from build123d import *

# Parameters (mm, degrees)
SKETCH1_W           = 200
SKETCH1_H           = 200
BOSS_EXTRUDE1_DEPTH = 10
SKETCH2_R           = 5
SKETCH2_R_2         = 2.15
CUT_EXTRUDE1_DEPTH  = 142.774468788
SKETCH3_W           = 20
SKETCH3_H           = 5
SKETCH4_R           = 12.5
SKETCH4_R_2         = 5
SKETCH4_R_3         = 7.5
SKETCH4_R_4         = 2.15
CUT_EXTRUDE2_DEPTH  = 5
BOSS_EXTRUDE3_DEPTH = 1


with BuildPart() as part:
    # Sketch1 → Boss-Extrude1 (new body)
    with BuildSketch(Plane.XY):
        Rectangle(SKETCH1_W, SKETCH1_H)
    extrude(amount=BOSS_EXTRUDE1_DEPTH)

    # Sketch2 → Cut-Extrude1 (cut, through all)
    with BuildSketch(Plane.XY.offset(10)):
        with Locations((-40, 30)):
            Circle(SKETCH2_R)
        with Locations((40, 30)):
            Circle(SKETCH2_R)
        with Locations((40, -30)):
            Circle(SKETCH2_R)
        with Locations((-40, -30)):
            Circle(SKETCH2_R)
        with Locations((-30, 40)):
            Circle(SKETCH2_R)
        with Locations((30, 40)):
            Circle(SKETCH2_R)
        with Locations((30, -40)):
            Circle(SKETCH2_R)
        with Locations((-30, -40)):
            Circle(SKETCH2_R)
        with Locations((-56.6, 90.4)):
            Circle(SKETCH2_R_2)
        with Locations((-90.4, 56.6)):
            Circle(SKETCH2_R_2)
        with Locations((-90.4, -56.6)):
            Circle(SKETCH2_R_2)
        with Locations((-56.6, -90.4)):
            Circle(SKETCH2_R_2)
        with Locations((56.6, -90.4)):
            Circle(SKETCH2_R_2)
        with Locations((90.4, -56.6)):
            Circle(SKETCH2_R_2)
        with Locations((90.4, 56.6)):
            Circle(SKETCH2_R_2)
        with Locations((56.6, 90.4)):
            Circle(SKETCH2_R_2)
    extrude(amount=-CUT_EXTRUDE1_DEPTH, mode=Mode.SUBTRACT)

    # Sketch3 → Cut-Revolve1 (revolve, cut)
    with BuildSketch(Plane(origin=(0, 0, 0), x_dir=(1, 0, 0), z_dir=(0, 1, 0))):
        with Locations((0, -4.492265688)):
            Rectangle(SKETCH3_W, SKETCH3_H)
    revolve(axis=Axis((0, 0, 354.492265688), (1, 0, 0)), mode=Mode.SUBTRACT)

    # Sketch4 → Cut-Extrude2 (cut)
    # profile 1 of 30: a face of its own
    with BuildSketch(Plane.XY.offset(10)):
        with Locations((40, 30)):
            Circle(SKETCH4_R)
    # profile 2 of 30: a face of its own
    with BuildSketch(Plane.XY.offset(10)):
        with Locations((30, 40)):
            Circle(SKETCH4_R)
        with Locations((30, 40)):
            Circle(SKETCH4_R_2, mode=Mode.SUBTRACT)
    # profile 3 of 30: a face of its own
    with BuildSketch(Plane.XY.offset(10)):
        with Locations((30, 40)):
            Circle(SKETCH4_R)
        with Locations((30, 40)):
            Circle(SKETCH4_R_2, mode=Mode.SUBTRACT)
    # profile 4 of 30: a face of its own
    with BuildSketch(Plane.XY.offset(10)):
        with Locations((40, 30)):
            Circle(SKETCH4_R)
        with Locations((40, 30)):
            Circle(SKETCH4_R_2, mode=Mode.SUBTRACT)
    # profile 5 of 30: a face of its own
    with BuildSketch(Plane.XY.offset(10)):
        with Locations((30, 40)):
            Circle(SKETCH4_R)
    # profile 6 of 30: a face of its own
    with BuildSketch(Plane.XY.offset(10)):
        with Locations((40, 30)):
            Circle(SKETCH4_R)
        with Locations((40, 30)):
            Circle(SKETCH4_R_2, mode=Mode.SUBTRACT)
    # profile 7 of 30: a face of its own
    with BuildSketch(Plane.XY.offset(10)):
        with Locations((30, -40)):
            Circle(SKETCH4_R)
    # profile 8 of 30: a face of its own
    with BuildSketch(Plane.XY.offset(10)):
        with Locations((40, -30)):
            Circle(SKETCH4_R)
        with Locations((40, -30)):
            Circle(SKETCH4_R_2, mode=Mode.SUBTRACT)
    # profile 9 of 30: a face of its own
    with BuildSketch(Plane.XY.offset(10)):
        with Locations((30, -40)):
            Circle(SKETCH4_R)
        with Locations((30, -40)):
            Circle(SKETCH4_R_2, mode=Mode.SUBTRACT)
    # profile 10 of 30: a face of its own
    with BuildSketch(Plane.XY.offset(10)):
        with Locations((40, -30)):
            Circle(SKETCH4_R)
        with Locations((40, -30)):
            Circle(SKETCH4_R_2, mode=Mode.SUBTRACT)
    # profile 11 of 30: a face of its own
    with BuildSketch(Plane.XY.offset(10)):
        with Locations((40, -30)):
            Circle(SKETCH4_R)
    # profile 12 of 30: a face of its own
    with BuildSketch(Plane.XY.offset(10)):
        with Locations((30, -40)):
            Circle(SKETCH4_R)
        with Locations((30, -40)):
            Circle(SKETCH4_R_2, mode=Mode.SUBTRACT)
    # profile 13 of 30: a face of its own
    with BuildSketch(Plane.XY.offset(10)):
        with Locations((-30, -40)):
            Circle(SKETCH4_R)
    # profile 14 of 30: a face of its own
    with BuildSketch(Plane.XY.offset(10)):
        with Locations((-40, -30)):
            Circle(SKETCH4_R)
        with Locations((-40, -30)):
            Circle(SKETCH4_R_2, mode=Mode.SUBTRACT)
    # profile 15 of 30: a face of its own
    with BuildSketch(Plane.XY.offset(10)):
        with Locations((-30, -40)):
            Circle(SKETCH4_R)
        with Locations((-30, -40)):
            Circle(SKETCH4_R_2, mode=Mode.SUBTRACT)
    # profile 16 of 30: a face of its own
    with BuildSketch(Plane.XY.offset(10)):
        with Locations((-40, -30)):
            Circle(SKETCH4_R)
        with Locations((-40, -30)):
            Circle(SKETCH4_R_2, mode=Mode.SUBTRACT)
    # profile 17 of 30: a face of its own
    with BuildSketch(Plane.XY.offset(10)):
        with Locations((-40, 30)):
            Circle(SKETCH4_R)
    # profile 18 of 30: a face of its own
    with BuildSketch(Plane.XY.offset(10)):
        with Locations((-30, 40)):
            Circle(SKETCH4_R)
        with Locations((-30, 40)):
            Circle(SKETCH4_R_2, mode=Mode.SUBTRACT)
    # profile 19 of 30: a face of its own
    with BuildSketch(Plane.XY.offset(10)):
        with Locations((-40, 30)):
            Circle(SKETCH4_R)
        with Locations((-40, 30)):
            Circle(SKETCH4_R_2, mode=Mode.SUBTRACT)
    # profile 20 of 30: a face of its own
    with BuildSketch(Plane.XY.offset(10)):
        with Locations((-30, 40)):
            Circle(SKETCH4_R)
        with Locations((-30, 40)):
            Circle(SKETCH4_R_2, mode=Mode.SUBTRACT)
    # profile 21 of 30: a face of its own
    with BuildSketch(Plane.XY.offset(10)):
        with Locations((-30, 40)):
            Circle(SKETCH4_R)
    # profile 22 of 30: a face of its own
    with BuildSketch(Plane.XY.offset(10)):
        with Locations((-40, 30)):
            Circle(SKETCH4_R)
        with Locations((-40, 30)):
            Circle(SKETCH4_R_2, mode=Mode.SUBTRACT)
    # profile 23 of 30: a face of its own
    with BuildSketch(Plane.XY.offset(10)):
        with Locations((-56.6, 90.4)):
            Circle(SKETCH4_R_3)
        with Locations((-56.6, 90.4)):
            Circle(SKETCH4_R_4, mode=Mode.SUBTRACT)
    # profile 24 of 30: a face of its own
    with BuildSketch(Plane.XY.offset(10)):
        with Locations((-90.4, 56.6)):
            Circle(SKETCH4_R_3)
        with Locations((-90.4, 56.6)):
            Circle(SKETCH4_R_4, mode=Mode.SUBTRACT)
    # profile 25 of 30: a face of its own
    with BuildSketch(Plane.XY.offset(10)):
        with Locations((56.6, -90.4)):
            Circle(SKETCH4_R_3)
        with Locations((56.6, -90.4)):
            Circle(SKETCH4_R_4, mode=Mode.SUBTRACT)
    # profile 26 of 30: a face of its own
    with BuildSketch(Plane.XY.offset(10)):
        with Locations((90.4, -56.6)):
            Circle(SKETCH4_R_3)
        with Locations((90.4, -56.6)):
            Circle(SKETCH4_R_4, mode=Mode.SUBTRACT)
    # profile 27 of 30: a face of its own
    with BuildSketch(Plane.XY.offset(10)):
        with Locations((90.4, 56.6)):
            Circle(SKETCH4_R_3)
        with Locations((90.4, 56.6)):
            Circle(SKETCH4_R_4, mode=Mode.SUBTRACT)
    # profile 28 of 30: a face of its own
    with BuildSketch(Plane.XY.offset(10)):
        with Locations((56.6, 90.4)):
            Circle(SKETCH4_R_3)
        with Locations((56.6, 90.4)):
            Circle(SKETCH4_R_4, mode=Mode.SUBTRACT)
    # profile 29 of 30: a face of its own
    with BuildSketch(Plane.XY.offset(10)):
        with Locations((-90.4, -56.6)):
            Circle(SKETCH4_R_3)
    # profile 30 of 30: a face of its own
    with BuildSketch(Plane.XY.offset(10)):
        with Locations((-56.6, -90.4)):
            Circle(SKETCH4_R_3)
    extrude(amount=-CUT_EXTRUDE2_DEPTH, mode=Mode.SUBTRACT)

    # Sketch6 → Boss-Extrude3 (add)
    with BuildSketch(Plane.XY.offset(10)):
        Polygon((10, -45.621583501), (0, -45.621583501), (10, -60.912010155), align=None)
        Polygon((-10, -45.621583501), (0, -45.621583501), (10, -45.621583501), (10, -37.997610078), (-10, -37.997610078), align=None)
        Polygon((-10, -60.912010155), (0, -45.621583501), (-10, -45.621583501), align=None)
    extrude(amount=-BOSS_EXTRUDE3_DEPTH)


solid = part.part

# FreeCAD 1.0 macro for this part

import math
import FreeCAD as App
import Part
import Sketcher

V = App.Vector

doc = App.newDocument("Part")
params = doc.addObject("Spreadsheet::Sheet", "Params")
for row, (alias, value) in enumerate([
    ("sketch1_width", "200 mm"),
    ("pad1_length", "10 mm"),
    ("sketch2_diameter", "10 mm"),
    ("sketch2_diameter2", "4.3 mm"),
    ("sketch3_width", "20 mm"),
    ("sketch3_height", "5 mm"),
    ("groove_angle", "360 deg"),
    ("sketch4_diameter", "15 mm"),
    ("sketch4_radius", "5 mm"),
    ("sketch4_diameter2", "4.3 mm"),
    ("sketch4_radius2", "12.5 mm"),
    ("pocket2_length", "5 mm"),
    ("sketch5_width", "20 mm"),
    ("pad2_length", "1 mm"),
], start=1):
    params.set(f"A{row}", alias)
    params.set(f"B{row}", "=" + value)
    params.setAlias(f"B{row}", alias)

body = doc.addObject("PartDesign::Body", "Body")

sketch1 = doc.addObject("Sketcher::SketchObject", "Sketch")
body.addObject(sketch1)
sketch1.AttachmentSupport = (doc.XY_Plane, [""])
sketch1.MapMode = "FlatFace"
sketch1.addGeometry([
    Part.LineSegment(V(-100, 100, 0), V(-100, -100, 0)),
    Part.LineSegment(V(-100, -100, 0), V(100, -100, 0)),
    Part.LineSegment(V(100, -100, 0), V(100, 100, 0)),
    Part.LineSegment(V(100, 100, 0), V(-100, 100, 0)),
], False)
sketch1.addConstraint([
    Sketcher.Constraint("Coincident", 0, 2, 1, 1),
    Sketcher.Constraint("Coincident", 1, 2, 2, 1),
    Sketcher.Constraint("Coincident", 2, 2, 3, 1),
    Sketcher.Constraint("Coincident", 3, 2, 0, 1),
    Sketcher.Constraint("Vertical", 0),
    Sketcher.Constraint("Horizontal", 1),
    Sketcher.Constraint("Vertical", 2),
    Sketcher.Constraint("Horizontal", 3),
    Sketcher.Constraint("Symmetric", 0, 2, 2, 2, -1, 1),
    Sketcher.Constraint("Equal", 3, 0),
    Sketcher.Constraint("DistanceX", 1, 1, 1, 2, 200.0),
])
sketch1.setExpression("Constraints[10]", "Params.sketch1_width")
pad1 = doc.addObject("PartDesign::Pad", "Pad")
body.addObject(pad1)
pad1.Profile = sketch1
pad1.setExpression("Length", "Params.pad1_length")

sketch2 = doc.addObject("Sketcher::SketchObject", "Sketch001")
body.addObject(sketch2)
sketch2.AttachmentSupport = (doc.XY_Plane, [""])
sketch2.MapMode = "FlatFace"
sketch2.AttachmentOffset = App.Placement(V(0, 0, 10), App.Rotation())
sketch2.addGeometry([
    Part.Circle(V(-40, 30, 0), V(0, 0, 1), 5),
    Part.Circle(V(40, 30, 0), V(0, 0, 1), 5),
    Part.Circle(V(40, -30, 0), V(0, 0, 1), 5),
    Part.Circle(V(-40, -30, 0), V(0, 0, 1), 5),
    Part.Circle(V(-30, 40, 0), V(0, 0, 1), 5),
    Part.Circle(V(30, 40, 0), V(0, 0, 1), 5),
    Part.Circle(V(30, -40, 0), V(0, 0, 1), 5),
    Part.Circle(V(-30, -40, 0), V(0, 0, 1), 5),
    Part.Circle(V(-56.6, 90.4, 0), V(0, 0, 1), 2.1),
    Part.Circle(V(-90.4, 56.6, 0), V(0, 0, 1), 2.1),
    Part.Circle(V(-90.4, -56.6, 0), V(0, 0, 1), 2.1),
    Part.Circle(V(-56.6, -90.4, 0), V(0, 0, 1), 2.1),
    Part.Circle(V(56.6, -90.4, 0), V(0, 0, 1), 2.1),
    Part.Circle(V(90.4, -56.6, 0), V(0, 0, 1), 2.1),
    Part.Circle(V(90.4, 56.6, 0), V(0, 0, 1), 2.1),
    Part.Circle(V(56.6, 90.4, 0), V(0, 0, 1), 2.1),
], False)
sketch2.addConstraint([
    Sketcher.Constraint("Equal", 0, 1),
    Sketcher.Constraint("Equal", 1, 2),
    Sketcher.Constraint("Equal", 2, 3),
    Sketcher.Constraint("Equal", 3, 4),
    Sketcher.Constraint("Equal", 4, 5),
    Sketcher.Constraint("Equal", 5, 6),
    Sketcher.Constraint("Equal", 6, 7),
    Sketcher.Constraint("Equal", 8, 9),
    Sketcher.Constraint("Equal", 9, 10),
    Sketcher.Constraint("Equal", 10, 11),
    Sketcher.Constraint("Equal", 11, 12),
    Sketcher.Constraint("Equal", 12, 13),
    Sketcher.Constraint("Equal", 13, 14),
    Sketcher.Constraint("Equal", 14, 15),
    Sketcher.Constraint("Symmetric", 0, 3, 2, 3, -1, 1),
    Sketcher.Constraint("Symmetric", 1, 3, 3, 3, -1, 1),
    Sketcher.Constraint("Symmetric", 4, 3, 6, 3, -1, 1),
    Sketcher.Constraint("Symmetric", 5, 3, 7, 3, -1, 1),
    Sketcher.Constraint("Symmetric", 8, 3, 12, 3, -1, 1),
    Sketcher.Constraint("Symmetric", 9, 3, 13, 3, -1, 1),
    Sketcher.Constraint("Symmetric", 10, 3, 14, 3, -1, 1),
    Sketcher.Constraint("Symmetric", 11, 3, 15, 3, -1, 1),
    Sketcher.Constraint("Symmetric", 0, 3, 1, 3, -2),
    Sketcher.Constraint("Symmetric", 4, 3, 5, 3, -2),
    Sketcher.Constraint("Symmetric", 11, 3, 12, 3, -2),
    Sketcher.Constraint("Symmetric", 10, 3, 13, 3, -2),
    Sketcher.Constraint("Diameter", 0, 10.0),
    Sketcher.Constraint("Diameter", 8, 4.3),
    Sketcher.Constraint("DistanceX", 0, 3, -1, 1, 40.0),
    Sketcher.Constraint("DistanceY", -1, 1, 0, 3, 30.0),
    Sketcher.Constraint("DistanceX", 4, 3, -1, 1, 30.0),
    Sketcher.Constraint("DistanceY", -1, 1, 4, 3, 40.0),
    Sketcher.Constraint("DistanceX", 8, 3, -1, 1, 56.6),
    Sketcher.Constraint("DistanceY", -1, 1, 8, 3, 90.4),
    Sketcher.Constraint("DistanceX", 9, 3, -1, 1, 90.4),
    Sketcher.Constraint("DistanceY", -1, 1, 9, 3, 56.6),
])
sketch2.setExpression("Constraints[26]", "Params.sketch2_diameter")
sketch2.setExpression("Constraints[27]", "Params.sketch2_diameter2")
pocket1 = doc.addObject("PartDesign::Pocket", "Pocket")
body.addObject(pocket1)
pocket1.Profile = sketch2
pocket1.Type = "ThroughAll"

sketch3 = doc.addObject("Sketcher::SketchObject", "Sketch002")
body.addObject(sketch3)
sketch3.AttachmentSupport = (doc.XZ_Plane, [""])
sketch3.MapMode = "FlatFace"
sketch3.addGeometry([
    Part.LineSegment(V(-10, 2, 0), V(-10, 7, 0)),
    Part.LineSegment(V(-10, 7, 0), V(10, 7, 0)),
    Part.LineSegment(V(10, 7, 0), V(10, 2, 0)),
    Part.LineSegment(V(10, 2, 0), V(-10, 2, 0)),
], False)
sketch3.addGeometry(Part.LineSegment(V(-10, 354, 0), V(10, 354, 0)), True)
sketch3.addConstraint([
    Sketcher.Constraint("Coincident", 0, 2, 1, 1),
    Sketcher.Constraint("Coincident", 1, 2, 2, 1),
    Sketcher.Constraint("Coincident", 2, 2, 3, 1),
    Sketcher.Constraint("Coincident", 3, 2, 0, 1),
    Sketcher.Constraint("Vertical", 0),
    Sketcher.Constraint("Horizontal", 1),
    Sketcher.Constraint("Vertical", 2),
    Sketcher.Constraint("Horizontal", 3),
    Sketcher.Constraint("Horizontal", 4),
    Sketcher.Constraint("Vertical", 3, 2, 4, 1),
    Sketcher.Constraint("Vertical", 2, 2, 4, 2),
    Sketcher.Constraint("DistanceX", 1, 1, 1, 2, 20.0),
    Sketcher.Constraint("DistanceY", 0, 1, 0, 2, 5.0),
    Sketcher.Constraint("DistanceX", 0, 2, -1, 1, 10.0),
    Sketcher.Constraint("DistanceY", 0, 2, 4, 1, 347.5),
    Sketcher.Constraint("DistanceY", -1, 1, 0, 2, 6.992266),
])
sketch3.setExpression("Constraints[11]", "Params.sketch3_width")
sketch3.setExpression("Constraints[12]", "Params.sketch3_height")
groove = doc.addObject("PartDesign::Groove", "Groove")
body.addObject(groove)
groove.Profile = sketch3
groove.ReferenceAxis = (sketch3, ["Axis0"])
groove.setExpression("Angle", "Params.groove_angle")

sketch4 = doc.addObject("Sketcher::SketchObject", "Sketch003")
body.addObject(sketch4)
sketch4.AttachmentSupport = (doc.XY_Plane, [""])
sketch4.MapMode = "FlatFace"
sketch4.AttachmentOffset = App.Placement(V(0, 0, 10), App.Rotation())
sketch4.addGeometry([
    Part.ArcOfCircle(Part.Circle(V(40, 30, 0), V(0, 0, 1), 12.5), math.radians(-169), math.radians(79)),
    Part.ArcOfCircle(Part.Circle(V(30, 40, 0), V(0, 0, 1), 12.5), math.radians(11), math.radians(259)),
    Part.ArcOfCircle(Part.Circle(V(40, -30, 0), V(0, 0, 1), 12.5), math.radians(-79), math.radians(169)),
    Part.ArcOfCircle(Part.Circle(V(30, -40, 0), V(0, 0, 1), 12.5), math.radians(101), math.radians(349)),
    Part.ArcOfCircle(Part.Circle(V(-30, -40, 0), V(0, 0, 1), 12.5), math.radians(-169), math.radians(79)),
    Part.ArcOfCircle(Part.Circle(V(-40, -30, 0), V(0, 0, 1), 12.5), math.radians(11), math.radians(259)),
    Part.ArcOfCircle(Part.Circle(V(-30, -40, 0), V(0, 0, 1), 12.5), math.radians(115), math.radians(155)),
    Part.ArcOfCircle(Part.Circle(V(-40, -30, 0), V(0, 0, 1), 5), math.radians(16), math.radians(254)),
    Part.ArcOfCircle(Part.Circle(V(-30, 40, 0), V(0, 0, 1), 12.5), math.radians(-79), math.radians(169)),
    Part.ArcOfCircle(Part.Circle(V(-40, 30, 0), V(0, 0, 1), 12.5), math.radians(101), math.radians(349)),
    Part.Circle(V(-56.6, 90.4, 0), V(0, 0, 1), 7.5),
    Part.Circle(V(-56.6, 90.4, 0), V(0, 0, 1), 2.1),
    Part.Circle(V(-90.4, 56.6, 0), V(0, 0, 1), 7.5),
    Part.Circle(V(-90.4, 56.6, 0), V(0, 0, 1), 2.1),
    Part.Circle(V(56.6, -90.4, 0), V(0, 0, 1), 7.5),
    Part.Circle(V(56.6, -90.4, 0), V(0, 0, 1), 2.1),
    Part.Circle(V(90.4, -56.6, 0), V(0, 0, 1), 7.5),
    Part.Circle(V(90.4, -56.6, 0), V(0, 0, 1), 2.1),
    Part.Circle(V(90.4, 56.6, 0), V(0, 0, 1), 7.5),
    Part.Circle(V(90.4, 56.6, 0), V(0, 0, 1), 2.1),
    Part.Circle(V(56.6, 90.4, 0), V(0, 0, 1), 7.5),
    Part.Circle(V(56.6, 90.4, 0), V(0, 0, 1), 2.1),
    Part.Circle(V(-90.4, -56.6, 0), V(0, 0, 1), 7.5),
    Part.Circle(V(-56.6, -90.4, 0), V(0, 0, 1), 7.5),
], False)
sketch4.addConstraint([
    Sketcher.Constraint("Coincident", 0, 1, 1, 2),
    Sketcher.Constraint("Coincident", 1, 1, 0, 2),
    Sketcher.Constraint("Coincident", 2, 1, 3, 2),
    Sketcher.Constraint("Coincident", 3, 1, 2, 2),
    Sketcher.Constraint("Coincident", 4, 1, 5, 2),
    Sketcher.Constraint("Coincident", 5, 1, 4, 2),
    Sketcher.Constraint("Coincident", 6, 1, 7, 1),
    Sketcher.Constraint("Coincident", 7, 2, 6, 2),
    Sketcher.Constraint("Coincident", 8, 1, 9, 2),
    Sketcher.Constraint("Coincident", 9, 1, 8, 2),
    Sketcher.Constraint("Coincident", 6, 3, 4, 3),
    Sketcher.Constraint("Coincident", 7, 3, 5, 3),
    Sketcher.Constraint("Coincident", 11, 3, 10, 3),
    Sketcher.Constraint("Coincident", 13, 3, 12, 3),
    Sketcher.Constraint("Coincident", 15, 3, 14, 3),
    Sketcher.Constraint("Coincident", 17, 3, 16, 3),
    Sketcher.Constraint("Coincident", 19, 3, 18, 3),
    Sketcher.Constraint("Coincident", 21, 3, 20, 3),
    Sketcher.Constraint("Equal", 0, 1),
    Sketcher.Constraint("Equal", 1, 2),
    Sketcher.Constraint("Equal", 2, 3),
    Sketcher.Constraint("Equal", 3, 4),
    Sketcher.Constraint("Equal", 4, 5),
    Sketcher.Constraint("Equal", 5, 6),
    Sketcher.Constraint("Equal", 6, 8),
    Sketcher.Constraint("Equal", 8, 9),
    Sketcher.Constraint("Equal", 10, 12),
    Sketcher.Constraint("Equal", 11, 13),
    Sketcher.Constraint("Equal", 12, 14),
    Sketcher.Constraint("Equal", 13, 15),
    Sketcher.Constraint("Equal", 14, 16),
    Sketcher.Constraint("Equal", 15, 17),
    Sketcher.Constraint("Equal", 16, 18),
    Sketcher.Constraint("Equal", 17, 19),
    Sketcher.Constraint("Equal", 18, 20),
    Sketcher.Constraint("Equal", 19, 21),
    Sketcher.Constraint("Equal", 20, 22),
    Sketcher.Constraint("Equal", 22, 23),
    Sketcher.Constraint("Symmetric", 1, 3, 4, 3, -1, 1),
    Sketcher.Constraint("Symmetric", 0, 3, 5, 3, -1, 1),
    Sketcher.Constraint("Symmetric", 3, 3, 8, 3, -1, 1),
    Sketcher.Constraint("Symmetric", 2, 3, 9, 3, -1, 1),
    Sketcher.Constraint("Symmetric", 10, 3, 14, 3, -1, 1),
    Sketcher.Constraint("Symmetric", 12, 3, 16, 3, -1, 1),
    Sketcher.Constraint("Symmetric", 18, 3, 22, 3, -1, 1),
    Sketcher.Constraint("Symmetric", 20, 3, 23, 3, -1, 1),
    Sketcher.Constraint("Symmetric", 3, 3, 4, 3, -2),
    Sketcher.Constraint("Symmetric", 2, 3, 5, 3, -2),
    Sketcher.Constraint("Symmetric", 12, 3, 18, 3, -2),
    Sketcher.Constraint("Symmetric", 10, 3, 20, 3, -2),
    Sketcher.Constraint("Diameter", 10, 15.0),
    Sketcher.Constraint("Radius", 7, 5.0),
    Sketcher.Constraint("Diameter", 11, 4.3),
    Sketcher.Constraint("Radius", 0, 12.5),
    Sketcher.Constraint("DistanceX", -1, 1, 0, 3, 40.0),
    Sketcher.Constraint("DistanceY", -1, 1, 0, 3, 30.0),
    Sketcher.Constraint("DistanceX", -1, 1, 1, 3, 30.0),
    Sketcher.Constraint("DistanceY", -1, 1, 1, 3, 40.0),
    Sketcher.Constraint("DistanceX", 10, 3, -1, 1, 56.6),
    Sketcher.Constraint("DistanceY", -1, 1, 10, 3, 90.4),
    Sketcher.Constraint("DistanceX", 12, 3, -1, 1, 90.4),
    Sketcher.Constraint("DistanceY", -1, 1, 12, 3, 56.6),
])
sketch4.setExpression("Constraints[50]", "Params.sketch4_diameter")
sketch4.setExpression("Constraints[51]", "Params.sketch4_radius")
sketch4.setExpression("Constraints[52]", "Params.sketch4_diameter2")
sketch4.setExpression("Constraints[53]", "Params.sketch4_radius2")
pocket2 = doc.addObject("PartDesign::Pocket", "Pocket001")
body.addObject(pocket2)
pocket2.Profile = sketch4
pocket2.setExpression("Length", "Params.pocket2_length")

sketch5 = doc.addObject("Sketcher::SketchObject", "Sketch004")
body.addObject(sketch5)
sketch5.AttachmentSupport = (doc.XY_Plane, [""])
sketch5.MapMode = "FlatFace"
sketch5.AttachmentOffset = App.Placement(V(0, 0, 10), App.Rotation())
sketch5.addGeometry([
    Part.LineSegment(V(0, -46, 0), V(10, -61, 0)),
    Part.LineSegment(V(10, -61, 0), V(10, -38, 0)),
    Part.LineSegment(V(10, -38, 0), V(-10, -38, 0)),
    Part.LineSegment(V(-10, -38, 0), V(-10, -61, 0)),
    Part.LineSegment(V(-10, -61, 0), V(0, -46, 0)),
], False)
sketch5.addConstraint([
    Sketcher.Constraint("Coincident", 0, 2, 1, 1),
    Sketcher.Constraint("Coincident", 1, 2, 2, 1),
    Sketcher.Constraint("Coincident", 2, 2, 3, 1),
    Sketcher.Constraint("Coincident", 3, 2, 4, 1),
    Sketcher.Constraint("Coincident", 4, 2, 0, 1),
    Sketcher.Constraint("Vertical", 1),
    Sketcher.Constraint("Horizontal", 2),
    Sketcher.Constraint("Vertical", 3),
    Sketcher.Constraint("Symmetric", 0, 2, 3, 2, -2),
    Sketcher.Constraint("PointOnObject", 4, 2, -2),
    Sketcher.Constraint("DistanceX", 2, 2, 2, 1, 20.0),
    Sketcher.Constraint("DistanceY", 1, 1, 1, 2, 22.9144),
    Sketcher.Constraint("DistanceY", 0, 2, -1, 1, 60.91201),
    Sketcher.Constraint("Distance", 0, 18.270116),
])
sketch5.setExpression("Constraints[10]", "Params.sketch5_width")
pad2 = doc.addObject("PartDesign::Pad", "Pad001")
body.addObject(pad2)
pad2.Profile = sketch5
pad2.setExpression("Length", "Params.pad2_length")
pad2.Reversed = True

doc.recompute()
